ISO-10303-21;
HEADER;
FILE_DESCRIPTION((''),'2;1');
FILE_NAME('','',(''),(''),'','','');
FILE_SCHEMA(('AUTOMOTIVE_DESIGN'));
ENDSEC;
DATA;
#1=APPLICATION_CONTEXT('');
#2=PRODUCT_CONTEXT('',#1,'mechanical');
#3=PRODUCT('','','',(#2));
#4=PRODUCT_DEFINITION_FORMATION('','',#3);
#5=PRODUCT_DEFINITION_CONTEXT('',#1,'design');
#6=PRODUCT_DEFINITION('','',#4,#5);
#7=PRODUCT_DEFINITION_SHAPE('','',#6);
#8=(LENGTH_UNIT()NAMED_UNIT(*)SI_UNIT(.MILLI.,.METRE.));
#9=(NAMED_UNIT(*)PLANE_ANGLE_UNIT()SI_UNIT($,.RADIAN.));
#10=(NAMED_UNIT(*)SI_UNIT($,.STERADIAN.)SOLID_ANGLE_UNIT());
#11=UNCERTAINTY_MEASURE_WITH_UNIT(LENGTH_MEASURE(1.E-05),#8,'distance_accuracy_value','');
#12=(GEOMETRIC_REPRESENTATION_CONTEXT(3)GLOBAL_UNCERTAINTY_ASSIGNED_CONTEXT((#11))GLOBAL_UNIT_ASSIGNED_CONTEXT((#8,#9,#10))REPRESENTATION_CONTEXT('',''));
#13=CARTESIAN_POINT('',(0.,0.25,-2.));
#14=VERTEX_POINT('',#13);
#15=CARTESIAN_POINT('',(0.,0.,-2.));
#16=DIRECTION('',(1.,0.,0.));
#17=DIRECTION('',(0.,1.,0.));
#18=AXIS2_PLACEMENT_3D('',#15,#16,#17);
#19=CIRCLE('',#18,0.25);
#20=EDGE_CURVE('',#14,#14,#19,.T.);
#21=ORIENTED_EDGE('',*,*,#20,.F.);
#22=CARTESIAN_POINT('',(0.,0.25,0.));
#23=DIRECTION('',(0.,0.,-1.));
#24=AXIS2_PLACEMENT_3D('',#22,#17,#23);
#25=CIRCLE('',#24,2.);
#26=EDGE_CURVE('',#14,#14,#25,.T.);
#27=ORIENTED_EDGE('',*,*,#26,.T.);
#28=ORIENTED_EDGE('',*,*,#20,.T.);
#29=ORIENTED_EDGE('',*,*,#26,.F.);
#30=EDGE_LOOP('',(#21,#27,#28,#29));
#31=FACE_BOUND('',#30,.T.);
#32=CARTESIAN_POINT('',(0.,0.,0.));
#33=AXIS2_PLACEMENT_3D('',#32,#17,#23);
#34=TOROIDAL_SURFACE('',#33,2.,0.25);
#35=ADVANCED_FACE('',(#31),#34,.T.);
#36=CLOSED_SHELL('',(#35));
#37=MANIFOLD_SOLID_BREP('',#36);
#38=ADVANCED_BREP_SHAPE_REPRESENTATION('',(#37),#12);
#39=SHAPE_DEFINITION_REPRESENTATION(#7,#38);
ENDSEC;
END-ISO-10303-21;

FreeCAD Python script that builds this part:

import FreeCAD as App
import Part
import Sketcher

V = App.Vector
Q = App.Units.Quantity

doc = App.newDocument("Part")
body = doc.addObject("PartDesign::Body", "Body")

# Sketch on YZ plane
sketch1 = doc.addObject("Sketcher::SketchObject", "Sketch")
body.addObject(sketch1)
sketch1.AttachmentSupport = (doc.YZ_Plane, [""])
sketch1.MapMode = "FlatFace"
sketch1.addGeometry(Part.Circle(V(0, -2, 0), V(0, 0, 1), 0.25), False)
sketch1.addConstraint([
    Sketcher.Constraint("PointOnObject", 0, 3, -2),
    Sketcher.Constraint("Diameter", 0, Q("0.5 mm")),
    Sketcher.Constraint("DistanceY", 0, 3, -1, 1, Q("2 mm")),
])
revolution = doc.addObject("PartDesign::Revolution", "Revolution")
body.addObject(revolution)
revolution.Profile = sketch1
revolution.ReferenceAxis = (sketch1, ["H_Axis"])
revolution.Angle = 360

doc.recompute()
